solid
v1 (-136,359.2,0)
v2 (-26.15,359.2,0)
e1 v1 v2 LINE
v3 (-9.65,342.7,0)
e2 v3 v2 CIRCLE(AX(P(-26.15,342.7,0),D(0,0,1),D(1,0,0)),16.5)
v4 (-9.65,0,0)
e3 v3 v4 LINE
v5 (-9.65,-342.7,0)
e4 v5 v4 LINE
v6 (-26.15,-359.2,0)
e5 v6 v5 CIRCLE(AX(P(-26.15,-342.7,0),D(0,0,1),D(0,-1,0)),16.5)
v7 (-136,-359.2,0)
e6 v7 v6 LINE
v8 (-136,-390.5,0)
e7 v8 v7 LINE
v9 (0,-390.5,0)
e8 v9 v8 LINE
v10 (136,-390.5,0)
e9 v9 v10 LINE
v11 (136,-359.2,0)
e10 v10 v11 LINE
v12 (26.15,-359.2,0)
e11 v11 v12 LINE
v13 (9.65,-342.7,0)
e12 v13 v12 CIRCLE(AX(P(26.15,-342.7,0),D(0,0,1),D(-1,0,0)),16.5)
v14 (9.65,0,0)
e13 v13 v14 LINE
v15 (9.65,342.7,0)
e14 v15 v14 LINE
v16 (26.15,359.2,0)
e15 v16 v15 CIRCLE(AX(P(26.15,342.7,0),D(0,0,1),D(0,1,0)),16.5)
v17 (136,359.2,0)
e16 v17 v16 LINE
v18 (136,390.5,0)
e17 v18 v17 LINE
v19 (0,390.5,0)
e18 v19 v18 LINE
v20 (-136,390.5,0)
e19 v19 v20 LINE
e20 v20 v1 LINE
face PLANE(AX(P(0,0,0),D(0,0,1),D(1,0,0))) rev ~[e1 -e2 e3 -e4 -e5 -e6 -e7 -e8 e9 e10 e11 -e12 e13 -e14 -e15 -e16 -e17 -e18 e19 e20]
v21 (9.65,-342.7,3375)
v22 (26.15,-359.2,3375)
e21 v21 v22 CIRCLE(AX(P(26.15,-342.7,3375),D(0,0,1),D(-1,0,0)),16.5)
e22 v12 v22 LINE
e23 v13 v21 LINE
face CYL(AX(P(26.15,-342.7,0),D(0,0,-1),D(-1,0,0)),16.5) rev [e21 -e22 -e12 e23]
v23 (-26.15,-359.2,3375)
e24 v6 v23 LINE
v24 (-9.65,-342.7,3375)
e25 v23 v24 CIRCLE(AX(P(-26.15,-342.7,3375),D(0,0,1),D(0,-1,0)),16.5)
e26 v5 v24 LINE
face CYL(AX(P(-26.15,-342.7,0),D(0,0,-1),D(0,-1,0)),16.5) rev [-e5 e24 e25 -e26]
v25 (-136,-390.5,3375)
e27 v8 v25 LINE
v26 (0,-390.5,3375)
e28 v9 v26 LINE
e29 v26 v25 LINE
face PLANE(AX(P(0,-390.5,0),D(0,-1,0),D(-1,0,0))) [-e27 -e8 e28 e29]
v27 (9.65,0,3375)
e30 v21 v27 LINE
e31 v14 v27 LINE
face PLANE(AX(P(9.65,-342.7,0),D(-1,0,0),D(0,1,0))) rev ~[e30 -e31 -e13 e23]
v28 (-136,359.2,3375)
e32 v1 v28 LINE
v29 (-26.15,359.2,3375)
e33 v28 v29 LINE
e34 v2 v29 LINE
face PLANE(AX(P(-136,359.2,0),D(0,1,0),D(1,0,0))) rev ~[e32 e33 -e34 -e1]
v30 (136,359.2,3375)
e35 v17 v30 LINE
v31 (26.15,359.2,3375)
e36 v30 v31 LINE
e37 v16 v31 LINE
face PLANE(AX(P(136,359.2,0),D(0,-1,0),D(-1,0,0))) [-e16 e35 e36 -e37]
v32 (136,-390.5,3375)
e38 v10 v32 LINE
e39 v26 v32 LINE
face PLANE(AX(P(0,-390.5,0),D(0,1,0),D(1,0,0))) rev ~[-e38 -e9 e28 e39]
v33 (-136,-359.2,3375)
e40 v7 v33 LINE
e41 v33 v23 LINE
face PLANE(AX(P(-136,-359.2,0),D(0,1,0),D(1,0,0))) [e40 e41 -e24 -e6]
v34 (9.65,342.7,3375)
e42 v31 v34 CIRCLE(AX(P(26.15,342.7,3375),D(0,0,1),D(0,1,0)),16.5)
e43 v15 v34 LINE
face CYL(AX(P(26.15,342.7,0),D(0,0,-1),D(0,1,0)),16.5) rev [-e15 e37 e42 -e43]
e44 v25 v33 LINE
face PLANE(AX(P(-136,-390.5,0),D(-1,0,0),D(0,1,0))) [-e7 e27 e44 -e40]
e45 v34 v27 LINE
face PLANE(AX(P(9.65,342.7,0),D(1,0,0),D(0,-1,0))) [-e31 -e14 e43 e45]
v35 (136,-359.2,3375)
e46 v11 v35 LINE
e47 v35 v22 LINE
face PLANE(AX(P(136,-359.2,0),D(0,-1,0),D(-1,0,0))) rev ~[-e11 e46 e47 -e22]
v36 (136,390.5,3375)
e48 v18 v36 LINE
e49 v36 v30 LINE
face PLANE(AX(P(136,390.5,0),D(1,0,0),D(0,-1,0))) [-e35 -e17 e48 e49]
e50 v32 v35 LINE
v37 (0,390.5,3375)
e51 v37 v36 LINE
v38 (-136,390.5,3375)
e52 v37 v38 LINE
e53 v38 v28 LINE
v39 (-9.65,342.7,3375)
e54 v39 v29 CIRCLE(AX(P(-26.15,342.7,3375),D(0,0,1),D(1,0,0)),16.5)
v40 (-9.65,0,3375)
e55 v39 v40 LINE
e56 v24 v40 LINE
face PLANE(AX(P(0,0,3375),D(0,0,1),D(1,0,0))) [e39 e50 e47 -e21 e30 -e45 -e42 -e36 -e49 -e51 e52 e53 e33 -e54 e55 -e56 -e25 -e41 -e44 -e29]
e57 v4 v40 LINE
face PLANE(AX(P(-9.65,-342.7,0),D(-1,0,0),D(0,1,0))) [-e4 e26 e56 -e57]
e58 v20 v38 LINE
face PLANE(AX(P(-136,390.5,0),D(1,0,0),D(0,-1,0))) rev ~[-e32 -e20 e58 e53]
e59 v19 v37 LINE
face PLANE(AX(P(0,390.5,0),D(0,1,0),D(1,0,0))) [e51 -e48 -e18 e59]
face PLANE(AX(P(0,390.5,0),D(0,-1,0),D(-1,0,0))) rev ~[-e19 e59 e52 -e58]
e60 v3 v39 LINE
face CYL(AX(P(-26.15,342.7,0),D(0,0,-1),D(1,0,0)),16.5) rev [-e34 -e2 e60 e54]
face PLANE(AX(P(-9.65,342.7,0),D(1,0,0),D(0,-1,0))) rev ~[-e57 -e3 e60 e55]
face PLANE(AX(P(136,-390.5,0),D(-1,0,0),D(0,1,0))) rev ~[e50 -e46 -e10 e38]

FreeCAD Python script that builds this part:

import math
import FreeCAD as App
import Part
import Sketcher

V = App.Vector
Q = App.Units.Quantity

doc = App.newDocument("Part")
body = doc.addObject("PartDesign::Body", "Body")

# Sketch on XY plane
sketch1 = body.newObject("Sketcher::SketchObject", "Sketch")
sketch1.AttachmentSupport = (doc.getObject("XY_Plane"), [""])
sketch1.MapMode = "FlatFace"
sketch1.addGeometry([
    Part.LineSegment(V(-136, -359.2, 0), V(-136, -390.5, 0)),  # 0
    Part.LineSegment(V(-136, -390.5, 0), V(136, -390.5, 0)),  # 1
    Part.LineSegment(V(136, -390.5, 0), V(136, -359.2, 0)),  # 2
    Part.LineSegment(V(136, -359.2, 0), V(26.15, -359.2, 0)),  # 3
    Part.ArcOfCircle(Part.Circle(V(26.15, -342.7, 0), V(0, 0, 1), 16.5), math.radians(180), math.radians(270)),  # 4
    Part.LineSegment(V(9.65, -342.7, 0), V(9.65, 342.7, 0)),  # 5
    Part.ArcOfCircle(Part.Circle(V(26.15, 342.7, 0), V(0, 0, 1), 16.5), math.radians(90), math.radians(180)),  # 6
    Part.LineSegment(V(26.15, 359.2, 0), V(136, 359.2, 0)),  # 7
    Part.LineSegment(V(136, 359.2, 0), V(136, 390.5, 0)),  # 8
    Part.LineSegment(V(136, 390.5, 0), V(-136, 390.5, 0)),  # 9
    Part.LineSegment(V(-136, 390.5, 0), V(-136, 359.2, 0)),  # 10
    Part.LineSegment(V(-136, 359.2, 0), V(-26.15, 359.2, 0)),  # 11
    Part.ArcOfCircle(Part.Circle(V(-26.15, 342.7, 0), V(0, 0, 1), 16.5), math.radians(0), math.radians(90)),  # 12
    Part.LineSegment(V(-9.65, 342.7, 0), V(-9.65, -342.7, 0)),  # 13
    Part.ArcOfCircle(Part.Circle(V(-26.15, -342.7, 0), V(0, 0, 1), 16.5), math.radians(-90), math.radians(0)),  # 14
    Part.LineSegment(V(-26.15, -359.2, 0), V(-136, -359.2, 0)),  # 15
], False)
sketch1.addConstraint([
    Sketcher.Constraint("Coincident", 0, 2, 1, 1),
    Sketcher.Constraint("Coincident", 1, 2, 2, 1),
    Sketcher.Constraint("Coincident", 2, 2, 3, 1),
    Sketcher.Constraint("Tangent", 3, 2, 4, 2),
    Sketcher.Constraint("Tangent", 4, 1, 5, 1),
    Sketcher.Constraint("Tangent", 5, 2, 6, 2),
    Sketcher.Constraint("Tangent", 6, 1, 7, 1),
    Sketcher.Constraint("Coincident", 7, 2, 8, 1),
    Sketcher.Constraint("Coincident", 8, 2, 9, 1),
    Sketcher.Constraint("Coincident", 9, 2, 10, 1),
    Sketcher.Constraint("Coincident", 10, 2, 11, 1),
    Sketcher.Constraint("Tangent", 11, 2, 12, 2),
    Sketcher.Constraint("Tangent", 12, 1, 13, 1),
    Sketcher.Constraint("Tangent", 13, 2, 14, 2),
    Sketcher.Constraint("Tangent", 14, 1, 15, 1),
    Sketcher.Constraint("Coincident", 15, 2, 0, 1),
    Sketcher.Constraint("Vertical", 0),
    Sketcher.Constraint("Horizontal", 1),
    Sketcher.Constraint("Vertical", 2),
    Sketcher.Constraint("Horizontal", 3),
    Sketcher.Constraint("Vertical", 5),
    Sketcher.Constraint("Horizontal", 7),
    Sketcher.Constraint("Vertical", 8),
    Sketcher.Constraint("Horizontal", 9),
    Sketcher.Constraint("Vertical", 10),
    Sketcher.Constraint("Horizontal", 11),
    Sketcher.Constraint("Vertical", 13),
    Sketcher.Constraint("Horizontal", 15),
    Sketcher.Constraint("Equal", 4, 6),
    Sketcher.Constraint("Equal", 6, 12),
    Sketcher.Constraint("Equal", 12, 14),
    Sketcher.Constraint("Symmetric", 4, 3, 12, 3, -1, 1),
    Sketcher.Constraint("Symmetric", 0, 2, 8, 2, -1, 1),
    Sketcher.Constraint("Symmetric", 7, 2, 10, 2, -2),
    Sketcher.Constraint("Symmetric", 2, 2, 15, 2, -2),
    Sketcher.Constraint("Radius", 4, Q("16.5 mm")),
    Sketcher.Constraint("DistanceY", 0, 2, 0, 1, Q("31.3 mm")),
    Sketcher.Constraint("DistanceX", 0, 2, -1, 1, Q("136 mm")),
    Sketcher.Constraint("DistanceY", 0, 2, -1, 1, Q("390.5 mm")),
    Sketcher.Constraint("DistanceX", -1, 1, 4, 1, Q("9.65 mm")),
])
pad1 = body.newObject("PartDesign::Pad", "Pad")
pad1.Profile = sketch1
pad1.Length = 3375

doc.recompute()
